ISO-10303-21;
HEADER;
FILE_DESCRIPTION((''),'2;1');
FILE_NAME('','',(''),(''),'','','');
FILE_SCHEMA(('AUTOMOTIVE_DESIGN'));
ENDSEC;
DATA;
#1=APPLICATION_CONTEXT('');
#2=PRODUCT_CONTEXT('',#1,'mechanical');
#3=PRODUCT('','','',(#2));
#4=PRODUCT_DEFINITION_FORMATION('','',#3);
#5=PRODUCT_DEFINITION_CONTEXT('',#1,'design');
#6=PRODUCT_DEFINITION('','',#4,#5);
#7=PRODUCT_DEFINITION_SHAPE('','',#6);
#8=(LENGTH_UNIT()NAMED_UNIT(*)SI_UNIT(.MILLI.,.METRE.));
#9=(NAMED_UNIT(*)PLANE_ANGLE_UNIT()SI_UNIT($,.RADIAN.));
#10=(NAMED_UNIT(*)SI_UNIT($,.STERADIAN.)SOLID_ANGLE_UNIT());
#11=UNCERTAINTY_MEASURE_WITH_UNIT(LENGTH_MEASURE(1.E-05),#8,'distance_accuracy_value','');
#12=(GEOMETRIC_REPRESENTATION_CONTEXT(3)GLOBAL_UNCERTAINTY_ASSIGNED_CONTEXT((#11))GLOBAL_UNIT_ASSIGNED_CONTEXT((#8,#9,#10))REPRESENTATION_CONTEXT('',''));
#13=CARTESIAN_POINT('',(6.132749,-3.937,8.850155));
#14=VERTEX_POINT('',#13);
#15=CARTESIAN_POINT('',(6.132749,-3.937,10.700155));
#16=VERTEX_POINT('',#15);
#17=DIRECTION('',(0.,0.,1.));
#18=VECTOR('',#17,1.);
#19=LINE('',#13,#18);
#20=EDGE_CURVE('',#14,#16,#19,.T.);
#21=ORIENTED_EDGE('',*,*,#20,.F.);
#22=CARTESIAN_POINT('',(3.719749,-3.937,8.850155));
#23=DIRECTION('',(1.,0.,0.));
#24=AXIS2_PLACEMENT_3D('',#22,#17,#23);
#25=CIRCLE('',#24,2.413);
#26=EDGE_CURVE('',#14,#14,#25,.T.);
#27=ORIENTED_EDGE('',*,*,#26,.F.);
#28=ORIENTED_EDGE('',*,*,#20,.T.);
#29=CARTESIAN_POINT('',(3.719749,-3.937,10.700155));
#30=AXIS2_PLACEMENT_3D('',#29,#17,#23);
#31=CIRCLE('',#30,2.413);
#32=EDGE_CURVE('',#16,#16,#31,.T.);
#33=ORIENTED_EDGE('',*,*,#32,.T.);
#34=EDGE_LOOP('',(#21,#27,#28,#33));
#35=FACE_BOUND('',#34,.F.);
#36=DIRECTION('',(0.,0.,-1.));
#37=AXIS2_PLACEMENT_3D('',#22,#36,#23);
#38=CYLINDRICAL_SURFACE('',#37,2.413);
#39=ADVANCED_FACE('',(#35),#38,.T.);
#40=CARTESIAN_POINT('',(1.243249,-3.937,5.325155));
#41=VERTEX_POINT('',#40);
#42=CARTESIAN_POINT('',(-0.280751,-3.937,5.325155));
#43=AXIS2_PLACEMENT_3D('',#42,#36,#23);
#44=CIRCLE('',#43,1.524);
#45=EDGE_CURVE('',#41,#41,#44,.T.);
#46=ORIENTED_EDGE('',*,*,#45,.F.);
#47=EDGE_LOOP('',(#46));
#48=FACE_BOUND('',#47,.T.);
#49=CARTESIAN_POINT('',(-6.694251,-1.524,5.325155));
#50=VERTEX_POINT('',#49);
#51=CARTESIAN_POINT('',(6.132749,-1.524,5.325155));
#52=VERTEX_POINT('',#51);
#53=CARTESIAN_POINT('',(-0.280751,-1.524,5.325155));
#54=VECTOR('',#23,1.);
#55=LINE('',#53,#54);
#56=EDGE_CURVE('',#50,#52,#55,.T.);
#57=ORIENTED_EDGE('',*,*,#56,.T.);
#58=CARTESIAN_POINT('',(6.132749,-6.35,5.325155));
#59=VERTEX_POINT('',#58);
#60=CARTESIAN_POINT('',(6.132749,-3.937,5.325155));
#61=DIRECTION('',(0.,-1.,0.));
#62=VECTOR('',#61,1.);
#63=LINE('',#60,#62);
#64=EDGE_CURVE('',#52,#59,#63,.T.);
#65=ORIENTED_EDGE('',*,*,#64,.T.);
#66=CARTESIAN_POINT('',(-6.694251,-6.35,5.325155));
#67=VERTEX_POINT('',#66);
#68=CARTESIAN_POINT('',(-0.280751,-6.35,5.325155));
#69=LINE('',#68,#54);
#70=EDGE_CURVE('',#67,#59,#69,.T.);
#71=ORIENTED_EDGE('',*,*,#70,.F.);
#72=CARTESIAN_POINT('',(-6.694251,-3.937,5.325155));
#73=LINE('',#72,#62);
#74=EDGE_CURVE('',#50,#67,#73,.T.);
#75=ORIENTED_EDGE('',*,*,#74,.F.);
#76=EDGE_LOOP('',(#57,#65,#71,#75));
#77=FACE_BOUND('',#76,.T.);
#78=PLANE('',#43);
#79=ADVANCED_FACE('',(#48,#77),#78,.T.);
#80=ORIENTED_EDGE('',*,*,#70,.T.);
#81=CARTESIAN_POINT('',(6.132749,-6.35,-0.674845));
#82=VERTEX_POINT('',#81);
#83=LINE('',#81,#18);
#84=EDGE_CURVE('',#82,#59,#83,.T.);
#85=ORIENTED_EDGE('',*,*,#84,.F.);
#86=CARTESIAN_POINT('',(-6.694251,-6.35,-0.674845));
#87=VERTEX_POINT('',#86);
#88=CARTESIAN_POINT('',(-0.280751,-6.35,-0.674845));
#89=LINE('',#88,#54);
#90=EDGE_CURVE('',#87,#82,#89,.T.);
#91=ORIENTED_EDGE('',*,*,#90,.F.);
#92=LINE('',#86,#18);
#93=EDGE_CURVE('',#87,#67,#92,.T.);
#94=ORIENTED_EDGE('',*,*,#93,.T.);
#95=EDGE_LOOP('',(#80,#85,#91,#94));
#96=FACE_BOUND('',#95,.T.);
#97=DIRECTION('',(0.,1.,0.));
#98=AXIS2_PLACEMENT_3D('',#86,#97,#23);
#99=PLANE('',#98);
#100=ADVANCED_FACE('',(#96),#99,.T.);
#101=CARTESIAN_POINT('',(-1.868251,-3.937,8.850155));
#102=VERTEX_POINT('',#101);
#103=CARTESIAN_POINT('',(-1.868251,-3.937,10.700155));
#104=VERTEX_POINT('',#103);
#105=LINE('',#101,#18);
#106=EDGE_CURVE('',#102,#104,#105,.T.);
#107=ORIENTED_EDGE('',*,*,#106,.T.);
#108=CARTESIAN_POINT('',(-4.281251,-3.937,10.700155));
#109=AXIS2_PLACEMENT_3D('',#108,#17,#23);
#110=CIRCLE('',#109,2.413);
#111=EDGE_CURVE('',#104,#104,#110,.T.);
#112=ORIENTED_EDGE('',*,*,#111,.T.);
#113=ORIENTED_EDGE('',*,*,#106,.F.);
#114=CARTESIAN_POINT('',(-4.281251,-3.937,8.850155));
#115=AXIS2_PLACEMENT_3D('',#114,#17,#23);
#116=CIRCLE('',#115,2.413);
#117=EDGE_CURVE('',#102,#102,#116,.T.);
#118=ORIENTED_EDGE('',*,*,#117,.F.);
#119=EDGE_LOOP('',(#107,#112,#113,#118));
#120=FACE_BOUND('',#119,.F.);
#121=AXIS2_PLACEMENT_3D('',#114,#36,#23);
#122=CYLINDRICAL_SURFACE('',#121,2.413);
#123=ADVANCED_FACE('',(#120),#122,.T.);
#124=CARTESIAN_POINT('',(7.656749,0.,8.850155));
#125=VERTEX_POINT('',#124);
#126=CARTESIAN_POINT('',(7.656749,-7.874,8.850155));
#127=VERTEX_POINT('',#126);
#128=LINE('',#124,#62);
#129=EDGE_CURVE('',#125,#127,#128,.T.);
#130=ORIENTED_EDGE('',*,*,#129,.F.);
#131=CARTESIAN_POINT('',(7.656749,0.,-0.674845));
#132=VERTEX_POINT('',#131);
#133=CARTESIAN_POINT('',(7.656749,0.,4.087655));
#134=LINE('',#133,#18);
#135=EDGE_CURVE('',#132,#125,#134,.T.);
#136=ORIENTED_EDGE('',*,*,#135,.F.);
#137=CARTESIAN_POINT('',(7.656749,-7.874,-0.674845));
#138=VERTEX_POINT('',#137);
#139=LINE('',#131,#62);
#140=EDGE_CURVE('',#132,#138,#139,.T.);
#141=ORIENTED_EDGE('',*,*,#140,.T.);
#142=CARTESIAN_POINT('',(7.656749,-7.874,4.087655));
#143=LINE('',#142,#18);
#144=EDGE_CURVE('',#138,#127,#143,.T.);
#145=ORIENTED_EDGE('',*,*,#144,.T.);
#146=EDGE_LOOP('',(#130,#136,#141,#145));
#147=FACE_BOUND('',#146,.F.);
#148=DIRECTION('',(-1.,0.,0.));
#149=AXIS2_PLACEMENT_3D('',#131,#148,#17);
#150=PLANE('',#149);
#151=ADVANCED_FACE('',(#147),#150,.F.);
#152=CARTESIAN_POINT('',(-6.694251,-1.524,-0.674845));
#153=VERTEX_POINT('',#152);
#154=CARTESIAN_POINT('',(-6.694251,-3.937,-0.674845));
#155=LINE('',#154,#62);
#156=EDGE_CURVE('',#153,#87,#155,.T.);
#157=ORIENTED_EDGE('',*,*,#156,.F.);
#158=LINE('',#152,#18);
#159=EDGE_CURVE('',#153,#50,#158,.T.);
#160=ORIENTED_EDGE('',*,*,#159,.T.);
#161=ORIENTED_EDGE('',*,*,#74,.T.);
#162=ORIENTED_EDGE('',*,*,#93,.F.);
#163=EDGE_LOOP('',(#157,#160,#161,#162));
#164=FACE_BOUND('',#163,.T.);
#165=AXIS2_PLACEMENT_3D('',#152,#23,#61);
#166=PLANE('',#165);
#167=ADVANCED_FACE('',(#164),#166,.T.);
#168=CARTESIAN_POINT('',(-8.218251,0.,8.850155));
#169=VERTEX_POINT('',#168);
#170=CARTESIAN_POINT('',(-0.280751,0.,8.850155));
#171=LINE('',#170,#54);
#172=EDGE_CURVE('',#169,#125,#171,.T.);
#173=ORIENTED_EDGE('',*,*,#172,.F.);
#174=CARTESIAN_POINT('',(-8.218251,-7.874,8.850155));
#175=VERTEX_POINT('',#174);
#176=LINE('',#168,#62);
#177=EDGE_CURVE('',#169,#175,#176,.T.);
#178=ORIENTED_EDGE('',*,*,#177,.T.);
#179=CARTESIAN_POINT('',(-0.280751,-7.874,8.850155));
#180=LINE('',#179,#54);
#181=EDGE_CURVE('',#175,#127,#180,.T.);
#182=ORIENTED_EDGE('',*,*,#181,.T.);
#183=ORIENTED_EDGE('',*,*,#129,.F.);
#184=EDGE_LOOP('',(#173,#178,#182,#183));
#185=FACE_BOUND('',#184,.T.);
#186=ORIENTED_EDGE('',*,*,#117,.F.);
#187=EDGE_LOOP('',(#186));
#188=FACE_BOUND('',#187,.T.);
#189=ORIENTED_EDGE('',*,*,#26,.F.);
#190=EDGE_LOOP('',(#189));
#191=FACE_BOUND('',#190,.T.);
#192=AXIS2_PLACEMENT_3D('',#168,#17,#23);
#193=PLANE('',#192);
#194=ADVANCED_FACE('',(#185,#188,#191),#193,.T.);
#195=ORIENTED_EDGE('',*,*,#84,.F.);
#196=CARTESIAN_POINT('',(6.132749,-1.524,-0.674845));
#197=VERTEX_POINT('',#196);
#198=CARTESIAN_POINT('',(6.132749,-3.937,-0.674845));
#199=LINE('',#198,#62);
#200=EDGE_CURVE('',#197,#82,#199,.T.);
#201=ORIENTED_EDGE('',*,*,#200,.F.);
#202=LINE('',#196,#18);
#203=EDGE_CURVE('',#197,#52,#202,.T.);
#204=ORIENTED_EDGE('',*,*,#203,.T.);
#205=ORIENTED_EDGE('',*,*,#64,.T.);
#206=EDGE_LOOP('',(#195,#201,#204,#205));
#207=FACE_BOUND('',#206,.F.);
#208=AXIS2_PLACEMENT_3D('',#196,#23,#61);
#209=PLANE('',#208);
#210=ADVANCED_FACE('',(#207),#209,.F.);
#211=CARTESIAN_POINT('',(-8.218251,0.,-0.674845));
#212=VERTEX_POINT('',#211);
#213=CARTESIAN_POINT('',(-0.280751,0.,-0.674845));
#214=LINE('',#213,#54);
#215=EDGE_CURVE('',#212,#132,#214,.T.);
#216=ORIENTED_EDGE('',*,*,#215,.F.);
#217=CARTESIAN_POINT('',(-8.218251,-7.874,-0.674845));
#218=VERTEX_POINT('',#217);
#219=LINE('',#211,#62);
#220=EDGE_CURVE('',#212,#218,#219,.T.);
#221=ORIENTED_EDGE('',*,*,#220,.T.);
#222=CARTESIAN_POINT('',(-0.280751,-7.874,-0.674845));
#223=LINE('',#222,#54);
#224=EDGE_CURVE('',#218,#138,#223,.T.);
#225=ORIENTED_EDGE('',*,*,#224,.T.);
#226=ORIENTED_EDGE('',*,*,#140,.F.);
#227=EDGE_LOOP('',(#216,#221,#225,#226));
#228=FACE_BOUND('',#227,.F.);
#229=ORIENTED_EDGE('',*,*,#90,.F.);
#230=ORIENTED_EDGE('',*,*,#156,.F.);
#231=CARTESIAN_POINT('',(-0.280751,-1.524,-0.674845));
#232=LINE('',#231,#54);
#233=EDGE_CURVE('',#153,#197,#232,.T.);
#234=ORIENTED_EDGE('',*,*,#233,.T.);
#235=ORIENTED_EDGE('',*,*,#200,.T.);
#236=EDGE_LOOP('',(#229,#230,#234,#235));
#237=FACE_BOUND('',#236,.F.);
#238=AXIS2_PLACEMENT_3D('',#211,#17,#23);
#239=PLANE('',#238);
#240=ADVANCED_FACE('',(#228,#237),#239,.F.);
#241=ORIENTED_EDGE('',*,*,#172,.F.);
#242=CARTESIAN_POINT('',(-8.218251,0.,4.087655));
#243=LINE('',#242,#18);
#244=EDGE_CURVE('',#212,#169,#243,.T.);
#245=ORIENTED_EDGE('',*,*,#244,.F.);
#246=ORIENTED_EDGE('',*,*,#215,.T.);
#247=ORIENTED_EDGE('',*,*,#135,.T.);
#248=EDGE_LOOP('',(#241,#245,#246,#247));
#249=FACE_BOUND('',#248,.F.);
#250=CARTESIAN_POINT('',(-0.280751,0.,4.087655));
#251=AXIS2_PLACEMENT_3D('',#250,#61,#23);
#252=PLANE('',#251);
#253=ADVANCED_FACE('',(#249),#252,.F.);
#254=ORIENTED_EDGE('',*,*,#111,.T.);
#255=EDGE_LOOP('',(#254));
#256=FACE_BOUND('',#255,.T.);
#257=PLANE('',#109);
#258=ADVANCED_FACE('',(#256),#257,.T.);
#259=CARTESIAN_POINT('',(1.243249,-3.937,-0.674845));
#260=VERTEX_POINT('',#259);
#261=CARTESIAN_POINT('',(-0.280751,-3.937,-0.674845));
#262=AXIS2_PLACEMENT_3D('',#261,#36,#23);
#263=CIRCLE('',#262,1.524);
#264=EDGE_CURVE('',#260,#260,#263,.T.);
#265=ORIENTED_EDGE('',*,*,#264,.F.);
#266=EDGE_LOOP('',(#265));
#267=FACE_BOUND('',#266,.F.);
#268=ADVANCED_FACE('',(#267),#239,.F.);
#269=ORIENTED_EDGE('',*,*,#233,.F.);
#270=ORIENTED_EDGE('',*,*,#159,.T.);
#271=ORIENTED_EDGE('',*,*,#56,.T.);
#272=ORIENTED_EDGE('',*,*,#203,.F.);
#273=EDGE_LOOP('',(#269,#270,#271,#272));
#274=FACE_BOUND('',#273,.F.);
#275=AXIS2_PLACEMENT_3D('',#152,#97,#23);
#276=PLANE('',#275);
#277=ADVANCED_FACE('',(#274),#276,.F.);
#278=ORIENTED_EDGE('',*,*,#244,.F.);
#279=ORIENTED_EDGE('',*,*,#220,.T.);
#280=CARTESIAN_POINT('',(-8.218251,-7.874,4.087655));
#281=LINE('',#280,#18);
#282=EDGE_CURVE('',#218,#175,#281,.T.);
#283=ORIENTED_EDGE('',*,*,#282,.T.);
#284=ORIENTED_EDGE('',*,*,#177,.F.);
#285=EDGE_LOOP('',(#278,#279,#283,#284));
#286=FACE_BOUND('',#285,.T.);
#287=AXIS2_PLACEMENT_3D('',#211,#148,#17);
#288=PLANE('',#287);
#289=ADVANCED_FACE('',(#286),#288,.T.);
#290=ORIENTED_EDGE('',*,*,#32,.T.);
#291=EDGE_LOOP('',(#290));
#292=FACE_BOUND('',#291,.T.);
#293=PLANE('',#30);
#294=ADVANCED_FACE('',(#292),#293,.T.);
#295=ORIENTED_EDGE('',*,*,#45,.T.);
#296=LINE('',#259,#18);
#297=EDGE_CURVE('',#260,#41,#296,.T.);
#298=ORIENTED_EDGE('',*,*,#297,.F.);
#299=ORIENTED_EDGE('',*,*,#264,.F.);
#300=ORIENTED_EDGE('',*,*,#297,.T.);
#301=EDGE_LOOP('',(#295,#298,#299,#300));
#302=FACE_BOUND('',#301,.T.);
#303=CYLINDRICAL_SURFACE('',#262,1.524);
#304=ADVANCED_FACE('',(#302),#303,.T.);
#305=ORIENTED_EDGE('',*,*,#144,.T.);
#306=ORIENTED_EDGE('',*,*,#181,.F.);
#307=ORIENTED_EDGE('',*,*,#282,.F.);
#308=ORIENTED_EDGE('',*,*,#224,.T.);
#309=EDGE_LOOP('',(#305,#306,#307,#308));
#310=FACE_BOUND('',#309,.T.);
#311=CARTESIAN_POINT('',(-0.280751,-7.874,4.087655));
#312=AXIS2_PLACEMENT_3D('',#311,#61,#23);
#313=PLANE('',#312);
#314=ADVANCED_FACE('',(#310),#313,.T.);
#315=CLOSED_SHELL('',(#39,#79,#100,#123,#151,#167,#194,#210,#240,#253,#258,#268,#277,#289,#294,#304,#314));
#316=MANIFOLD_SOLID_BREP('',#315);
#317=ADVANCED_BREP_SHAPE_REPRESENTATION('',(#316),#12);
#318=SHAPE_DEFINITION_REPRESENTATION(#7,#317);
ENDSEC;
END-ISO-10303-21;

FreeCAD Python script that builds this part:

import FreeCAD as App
import Part
import Sketcher

V = App.Vector
Q = App.Units.Quantity


def add_polygon(sketch, points):
    """Adds a closed chain of lines whose ends are joined by coincident constraints."""
    first, n = sketch.GeometryCount, len(points)
    for a, b in zip(points, points[1:] + points[:1]):
        sketch.addGeometry(Part.LineSegment(App.Vector(*a, 0), App.Vector(*b, 0)), False)
    for i in range(n):
        sketch.addConstraint(Sketcher.Constraint("Coincident", first + i, 2, first + (i + 1) % n, 1))

doc = App.newDocument("Part")
body = doc.addObject("PartDesign::Body", "Body")

sketch1 = body.newObject("Sketcher::SketchObject", "Sketch")
sketch1.AttachmentSupport = (doc.getObject("XZ_Plane"), [""])
sketch1.MapMode = "FlatFace"
add_polygon(sketch1, [(-8.218251, 8.850155), (-8.218251, -0.674845), (7.656749, -0.674845), (7.656749, 8.850155)])
sketch1.addConstraint([
    Sketcher.Constraint("Vertical", 0),
    Sketcher.Constraint("Horizontal", 1),
    Sketcher.Constraint("Vertical", 2),
    Sketcher.Constraint("Horizontal", 3),
    Sketcher.Constraint("DistanceX", 1, 1, 1, 2, Q("0.625 in")),
    Sketcher.Constraint("DistanceY", 0, 2, 0, 1, Q("0.375 in")),
    Sketcher.Constraint("DistanceX", 0, 2, -1, 1, Q("8.218251 mm")),
    Sketcher.Constraint("DistanceY", 0, 2, -1, 1, Q("0.674845 mm")),
])
pad1 = body.newObject("PartDesign::Pad", "Pad")
pad1.Profile = sketch1
pad1.Length = Q("0.31 in")

sketch2 = body.newObject("Sketcher::SketchObject", "Sketch001")
sketch2.AttachmentSupport = (doc.getObject("XY_Plane"), [""])
sketch2.MapMode = "FlatFace"
sketch2.AttachmentOffset = App.Placement(V(0, 0, 8.850155), App.Rotation())
sketch2.addGeometry([
    Part.Circle(V(-4.281251, -3.937, 0), V(0, 0, 1), 2.413),
    Part.Circle(V(3.719749, -3.937, 0), V(0, 0, 1), 2.413),
], False)
sketch2.addConstraint([
    Sketcher.Constraint("Equal", 0, 1),
    Sketcher.Constraint("Horizontal", 0, 3, 1, 3),
    Sketcher.Constraint("Diameter", 0, Q("0.19 in")),
    Sketcher.Constraint("DistanceY", 0, 3, -1, 1, Q("0.155 in")),
    Sketcher.Constraint("DistanceX", 0, 3, 1, 3, Q("0.315 in")),
    Sketcher.Constraint("DistanceX", 0, 3, -1, 1, Q("4.281251 mm")),
])
pad2 = body.newObject("PartDesign::Pad", "Pad001")
pad2.Profile = sketch2
pad2.Length = 1.85

sketch3 = body.newObject("Sketcher::SketchObject", "Sketch002")
sketch3.AttachmentSupport = (doc.getObject("XY_Plane"), [""])
sketch3.MapMode = "FlatFace"
sketch3.AttachmentOffset = App.Placement(V(0, 0, -0.674845), App.Rotation())
add_polygon(sketch3, [(-6.694251, -6.35), (-6.694251, -1.524), (6.132749, -1.524), (6.132749, -6.35)])
sketch3.addGeometry(Part.Circle(V(-0.280751, -3.937, 0), V(0, 0, 1), 1.524), False)
sketch3.addConstraint([
    Sketcher.Constraint("Vertical", 0),
    Sketcher.Constraint("Horizontal", 1),
    Sketcher.Constraint("Vertical", 2),
    Sketcher.Constraint("Horizontal", 3),
    Sketcher.Constraint("Diameter", 4, Q("0.12 in")),
    Sketcher.Constraint("DistanceY", 0, 1, 0, 2, Q("0.19 in")),
    Sketcher.Constraint("DistanceX", 1, 1, 1, 2, Q("0.505 in")),
    Sketcher.Constraint("DistanceY", 0, 2, -1, 1, Q("0.06 in")),
    Sketcher.Constraint("DistanceY", 4, 3, -1, 1, Q("0.155 in")),
    Sketcher.Constraint("DistanceX", 0, 2, 4, 3, Q("0.2525 in")),
    Sketcher.Constraint("DistanceX", 4, 3, -1, 1, Q("0.280751 mm")),
])
pocket1 = body.newObject("PartDesign::Pocket", "Pocket")
pocket1.Profile = sketch3
pocket1.Length = 6
pocket1.Reversed = True

doc.recompute()
